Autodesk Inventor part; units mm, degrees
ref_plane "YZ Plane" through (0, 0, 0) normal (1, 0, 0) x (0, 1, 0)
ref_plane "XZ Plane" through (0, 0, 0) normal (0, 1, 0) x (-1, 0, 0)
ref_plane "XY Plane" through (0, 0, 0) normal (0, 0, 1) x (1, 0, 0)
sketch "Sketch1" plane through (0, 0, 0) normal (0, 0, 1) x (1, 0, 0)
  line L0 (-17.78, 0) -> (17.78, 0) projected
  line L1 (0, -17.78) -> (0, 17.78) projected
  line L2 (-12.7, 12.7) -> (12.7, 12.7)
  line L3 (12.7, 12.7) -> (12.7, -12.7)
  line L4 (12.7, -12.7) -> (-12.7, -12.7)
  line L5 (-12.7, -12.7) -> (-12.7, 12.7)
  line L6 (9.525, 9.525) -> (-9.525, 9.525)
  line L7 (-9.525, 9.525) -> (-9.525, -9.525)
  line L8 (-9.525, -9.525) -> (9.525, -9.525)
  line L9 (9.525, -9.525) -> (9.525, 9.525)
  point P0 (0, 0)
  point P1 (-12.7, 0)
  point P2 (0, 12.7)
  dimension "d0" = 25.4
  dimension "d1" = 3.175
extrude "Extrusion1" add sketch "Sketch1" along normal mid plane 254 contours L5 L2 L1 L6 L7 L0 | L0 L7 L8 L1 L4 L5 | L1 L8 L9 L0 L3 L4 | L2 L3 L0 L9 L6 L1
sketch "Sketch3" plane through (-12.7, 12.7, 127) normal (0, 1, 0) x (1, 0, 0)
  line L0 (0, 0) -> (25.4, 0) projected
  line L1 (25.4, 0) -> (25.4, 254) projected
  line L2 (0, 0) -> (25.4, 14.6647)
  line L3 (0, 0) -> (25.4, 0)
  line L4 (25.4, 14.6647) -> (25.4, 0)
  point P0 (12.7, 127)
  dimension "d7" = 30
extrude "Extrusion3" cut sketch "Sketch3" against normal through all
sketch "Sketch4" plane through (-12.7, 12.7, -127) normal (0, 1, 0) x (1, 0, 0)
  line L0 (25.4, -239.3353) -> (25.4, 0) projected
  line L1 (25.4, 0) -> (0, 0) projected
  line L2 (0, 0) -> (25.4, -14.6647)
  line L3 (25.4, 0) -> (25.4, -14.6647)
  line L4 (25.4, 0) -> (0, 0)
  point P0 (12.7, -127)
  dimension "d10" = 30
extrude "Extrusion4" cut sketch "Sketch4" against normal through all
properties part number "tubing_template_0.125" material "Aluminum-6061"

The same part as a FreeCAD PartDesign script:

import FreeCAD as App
import Part
import Sketcher
Q = App.Units.Quantity

doc = App.newDocument("Part")
body = doc.addObject("PartDesign::Body", "Body")

# Sketch on XY plane
sketch1 = body.newObject("Sketcher::SketchObject", "Sketch")
sketch1.AttachmentSupport = (doc.getObject("XY_Plane"), [""])
sketch1.MapMode = "FlatFace"
sketch1.addGeometry(Part.LineSegment(App.Vector(-12.7, 12.7, 0), App.Vector(-12.7, -12.7, 0)), False)
sketch1.addGeometry(Part.LineSegment(App.Vector(-12.7, -12.7, 0), App.Vector(12.7, -12.7, 0)), False)
sketch1.addGeometry(Part.LineSegment(App.Vector(12.7, -12.7, 0), App.Vector(12.7, 12.7, 0)), False)
sketch1.addGeometry(Part.LineSegment(App.Vector(12.7, 12.7, 0), App.Vector(-12.7, 12.7, 0)), False)
sketch1.addGeometry(Part.LineSegment(App.Vector(-9.525, 9.525, 0), App.Vector(9.525, 9.525, 0)), False)
sketch1.addGeometry(Part.LineSegment(App.Vector(9.525, 9.525, 0), App.Vector(9.525, -9.525, 0)), False)
sketch1.addGeometry(Part.LineSegment(App.Vector(9.525, -9.525, 0), App.Vector(-9.525, -9.525, 0)), False)
sketch1.addGeometry(Part.LineSegment(App.Vector(-9.525, -9.525, 0), App.Vector(-9.525, 9.525, 0)), False)
sketch1.addConstraint(Sketcher.Constraint("Coincident", 0, 2, 1, 1))
sketch1.addConstraint(Sketcher.Constraint("Coincident", 1, 2, 2, 1))
sketch1.addConstraint(Sketcher.Constraint("Coincident", 2, 2, 3, 1))
sketch1.addConstraint(Sketcher.Constraint("Coincident", 3, 2, 0, 1))
sketch1.addConstraint(Sketcher.Constraint("Coincident", 4, 2, 5, 1))
sketch1.addConstraint(Sketcher.Constraint("Coincident", 5, 2, 6, 1))
sketch1.addConstraint(Sketcher.Constraint("Coincident", 6, 2, 7, 1))
sketch1.addConstraint(Sketcher.Constraint("Coincident", 7, 2, 4, 1))
sketch1.addConstraint(Sketcher.Constraint("Vertical", 0))
sketch1.addConstraint(Sketcher.Constraint("Horizontal", 1))
sketch1.addConstraint(Sketcher.Constraint("Vertical", 2))
sketch1.addConstraint(Sketcher.Constraint("Horizontal", 3))
sketch1.addConstraint(Sketcher.Constraint("Horizontal", 4))
sketch1.addConstraint(Sketcher.Constraint("Vertical", 5))
sketch1.addConstraint(Sketcher.Constraint("Horizontal", 6))
sketch1.addConstraint(Sketcher.Constraint("Vertical", 7))
sketch1.addConstraint(Sketcher.Constraint("Symmetric", 0, 2, 2, 2, -1, 1))
sketch1.addConstraint(Sketcher.Constraint("Symmetric", 4, 2, 6, 2, -1, 1))
sketch1.addConstraint(Sketcher.Constraint("Equal", 3, 0))
sketch1.addConstraint(Sketcher.Constraint("Equal", 6, 5))
sketch1.addConstraint(Sketcher.Constraint("DistanceX", 1, 1, 1, 2, Q("1 in")))
sketch1.addConstraint(Sketcher.Constraint("DistanceX", 4, 2, 2, 2, Q("0.125 in")))
pad1 = body.newObject("PartDesign::Pad", "Pad")
pad1.Profile = sketch1
pad1.Length = Q("10 in")
pad1.Midplane = True

# Sketch on XZ plane
sketch2 = body.newObject("Sketcher::SketchObject", "Sketch001")
sketch2.AttachmentSupport = (doc.getObject("XZ_Plane"), [""])
sketch2.MapMode = "FlatFace"
sketch2.AttachmentOffset = App.Placement(App.Vector(0, 0, -0.5 * 25.4), App.Rotation())
sketch2.addGeometry(Part.LineSegment(App.Vector(12.7, 112.3353, 0), App.Vector(-12.7, 127, 0)), False)
sketch2.addGeometry(Part.LineSegment(App.Vector(-12.7, 127, 0), App.Vector(12.7, 127, 0)), False)
sketch2.addGeometry(Part.LineSegment(App.Vector(12.7, 127, 0), App.Vector(12.7, 112.3353, 0)), False)
sketch2.addConstraint(Sketcher.Constraint("Coincident", 0, 2, 1, 1))
sketch2.addConstraint(Sketcher.Constraint("Coincident", 1, 2, 2, 1))
sketch2.addConstraint(Sketcher.Constraint("Coincident", 2, 2, 0, 1))
sketch2.addConstraint(Sketcher.Constraint("Horizontal", 1))
sketch2.addConstraint(Sketcher.Constraint("Vertical", 2))
sketch2.addConstraint(Sketcher.Constraint("DistanceX", 1, 1, 1, 2, Q("1 in")))
sketch2.addConstraint(Sketcher.Constraint("DistanceY", -1, 1, 0, 2, Q("5 in")))
sketch2.addConstraint(Sketcher.Constraint("Angle", 0, Q("150 deg")))
sketch2.addConstraint(Sketcher.Constraint("DistanceX", 0, 2, -1, 1, Q("0.5 in")))
pocket1 = body.newObject("PartDesign::Pocket", "Pocket")
pocket1.Profile = sketch2
pocket1.Type = "ThroughAll"
pocket1.Reversed = True

# Sketch on XZ plane
sketch3 = body.newObject("Sketcher::SketchObject", "Sketch002")
sketch3.AttachmentSupport = (doc.getObject("XZ_Plane"), [""])
sketch3.MapMode = "FlatFace"
sketch3.AttachmentOffset = App.Placement(App.Vector(0, 0, -0.5 * 25.4), App.Rotation())
sketch3.addGeometry(Part.LineSegment(App.Vector(-12.7, -127, 0), App.Vector(12.7, -112.3353, 0)), False)
sketch3.addGeometry(Part.LineSegment(App.Vector(12.7, -112.3353, 0), App.Vector(12.7, -127, 0)), False)
sketch3.addGeometry(Part.LineSegment(App.Vector(12.7, -127, 0), App.Vector(-12.7, -127, 0)), False)
sketch3.addConstraint(Sketcher.Constraint("Coincident", 0, 2, 1, 1))
sketch3.addConstraint(Sketcher.Constraint("Coincident", 1, 2, 2, 1))
sketch3.addConstraint(Sketcher.Constraint("Coincident", 2, 2, 0, 1))
sketch3.addConstraint(Sketcher.Constraint("Vertical", 1))
sketch3.addConstraint(Sketcher.Constraint("Horizontal", 2))
sketch3.addConstraint(Sketcher.Constraint("Angle", 0, Q("30 deg")))
sketch3.addConstraint(Sketcher.Constraint("DistanceX", 2, 2, 2, 1, Q("1 in")))
sketch3.addConstraint(Sketcher.Constraint("DistanceY", 1, 2, -1, 1, Q("5 in")))
sketch3.addConstraint(Sketcher.Constraint("DistanceX", -1, 1, 0, 2, Q("0.5 in")))
pocket2 = body.newObject("PartDesign::Pocket", "Pocket001")
pocket2.Profile = sketch3
pocket2.Type = "ThroughAll"
pocket2.Reversed = True

doc.recompute()
